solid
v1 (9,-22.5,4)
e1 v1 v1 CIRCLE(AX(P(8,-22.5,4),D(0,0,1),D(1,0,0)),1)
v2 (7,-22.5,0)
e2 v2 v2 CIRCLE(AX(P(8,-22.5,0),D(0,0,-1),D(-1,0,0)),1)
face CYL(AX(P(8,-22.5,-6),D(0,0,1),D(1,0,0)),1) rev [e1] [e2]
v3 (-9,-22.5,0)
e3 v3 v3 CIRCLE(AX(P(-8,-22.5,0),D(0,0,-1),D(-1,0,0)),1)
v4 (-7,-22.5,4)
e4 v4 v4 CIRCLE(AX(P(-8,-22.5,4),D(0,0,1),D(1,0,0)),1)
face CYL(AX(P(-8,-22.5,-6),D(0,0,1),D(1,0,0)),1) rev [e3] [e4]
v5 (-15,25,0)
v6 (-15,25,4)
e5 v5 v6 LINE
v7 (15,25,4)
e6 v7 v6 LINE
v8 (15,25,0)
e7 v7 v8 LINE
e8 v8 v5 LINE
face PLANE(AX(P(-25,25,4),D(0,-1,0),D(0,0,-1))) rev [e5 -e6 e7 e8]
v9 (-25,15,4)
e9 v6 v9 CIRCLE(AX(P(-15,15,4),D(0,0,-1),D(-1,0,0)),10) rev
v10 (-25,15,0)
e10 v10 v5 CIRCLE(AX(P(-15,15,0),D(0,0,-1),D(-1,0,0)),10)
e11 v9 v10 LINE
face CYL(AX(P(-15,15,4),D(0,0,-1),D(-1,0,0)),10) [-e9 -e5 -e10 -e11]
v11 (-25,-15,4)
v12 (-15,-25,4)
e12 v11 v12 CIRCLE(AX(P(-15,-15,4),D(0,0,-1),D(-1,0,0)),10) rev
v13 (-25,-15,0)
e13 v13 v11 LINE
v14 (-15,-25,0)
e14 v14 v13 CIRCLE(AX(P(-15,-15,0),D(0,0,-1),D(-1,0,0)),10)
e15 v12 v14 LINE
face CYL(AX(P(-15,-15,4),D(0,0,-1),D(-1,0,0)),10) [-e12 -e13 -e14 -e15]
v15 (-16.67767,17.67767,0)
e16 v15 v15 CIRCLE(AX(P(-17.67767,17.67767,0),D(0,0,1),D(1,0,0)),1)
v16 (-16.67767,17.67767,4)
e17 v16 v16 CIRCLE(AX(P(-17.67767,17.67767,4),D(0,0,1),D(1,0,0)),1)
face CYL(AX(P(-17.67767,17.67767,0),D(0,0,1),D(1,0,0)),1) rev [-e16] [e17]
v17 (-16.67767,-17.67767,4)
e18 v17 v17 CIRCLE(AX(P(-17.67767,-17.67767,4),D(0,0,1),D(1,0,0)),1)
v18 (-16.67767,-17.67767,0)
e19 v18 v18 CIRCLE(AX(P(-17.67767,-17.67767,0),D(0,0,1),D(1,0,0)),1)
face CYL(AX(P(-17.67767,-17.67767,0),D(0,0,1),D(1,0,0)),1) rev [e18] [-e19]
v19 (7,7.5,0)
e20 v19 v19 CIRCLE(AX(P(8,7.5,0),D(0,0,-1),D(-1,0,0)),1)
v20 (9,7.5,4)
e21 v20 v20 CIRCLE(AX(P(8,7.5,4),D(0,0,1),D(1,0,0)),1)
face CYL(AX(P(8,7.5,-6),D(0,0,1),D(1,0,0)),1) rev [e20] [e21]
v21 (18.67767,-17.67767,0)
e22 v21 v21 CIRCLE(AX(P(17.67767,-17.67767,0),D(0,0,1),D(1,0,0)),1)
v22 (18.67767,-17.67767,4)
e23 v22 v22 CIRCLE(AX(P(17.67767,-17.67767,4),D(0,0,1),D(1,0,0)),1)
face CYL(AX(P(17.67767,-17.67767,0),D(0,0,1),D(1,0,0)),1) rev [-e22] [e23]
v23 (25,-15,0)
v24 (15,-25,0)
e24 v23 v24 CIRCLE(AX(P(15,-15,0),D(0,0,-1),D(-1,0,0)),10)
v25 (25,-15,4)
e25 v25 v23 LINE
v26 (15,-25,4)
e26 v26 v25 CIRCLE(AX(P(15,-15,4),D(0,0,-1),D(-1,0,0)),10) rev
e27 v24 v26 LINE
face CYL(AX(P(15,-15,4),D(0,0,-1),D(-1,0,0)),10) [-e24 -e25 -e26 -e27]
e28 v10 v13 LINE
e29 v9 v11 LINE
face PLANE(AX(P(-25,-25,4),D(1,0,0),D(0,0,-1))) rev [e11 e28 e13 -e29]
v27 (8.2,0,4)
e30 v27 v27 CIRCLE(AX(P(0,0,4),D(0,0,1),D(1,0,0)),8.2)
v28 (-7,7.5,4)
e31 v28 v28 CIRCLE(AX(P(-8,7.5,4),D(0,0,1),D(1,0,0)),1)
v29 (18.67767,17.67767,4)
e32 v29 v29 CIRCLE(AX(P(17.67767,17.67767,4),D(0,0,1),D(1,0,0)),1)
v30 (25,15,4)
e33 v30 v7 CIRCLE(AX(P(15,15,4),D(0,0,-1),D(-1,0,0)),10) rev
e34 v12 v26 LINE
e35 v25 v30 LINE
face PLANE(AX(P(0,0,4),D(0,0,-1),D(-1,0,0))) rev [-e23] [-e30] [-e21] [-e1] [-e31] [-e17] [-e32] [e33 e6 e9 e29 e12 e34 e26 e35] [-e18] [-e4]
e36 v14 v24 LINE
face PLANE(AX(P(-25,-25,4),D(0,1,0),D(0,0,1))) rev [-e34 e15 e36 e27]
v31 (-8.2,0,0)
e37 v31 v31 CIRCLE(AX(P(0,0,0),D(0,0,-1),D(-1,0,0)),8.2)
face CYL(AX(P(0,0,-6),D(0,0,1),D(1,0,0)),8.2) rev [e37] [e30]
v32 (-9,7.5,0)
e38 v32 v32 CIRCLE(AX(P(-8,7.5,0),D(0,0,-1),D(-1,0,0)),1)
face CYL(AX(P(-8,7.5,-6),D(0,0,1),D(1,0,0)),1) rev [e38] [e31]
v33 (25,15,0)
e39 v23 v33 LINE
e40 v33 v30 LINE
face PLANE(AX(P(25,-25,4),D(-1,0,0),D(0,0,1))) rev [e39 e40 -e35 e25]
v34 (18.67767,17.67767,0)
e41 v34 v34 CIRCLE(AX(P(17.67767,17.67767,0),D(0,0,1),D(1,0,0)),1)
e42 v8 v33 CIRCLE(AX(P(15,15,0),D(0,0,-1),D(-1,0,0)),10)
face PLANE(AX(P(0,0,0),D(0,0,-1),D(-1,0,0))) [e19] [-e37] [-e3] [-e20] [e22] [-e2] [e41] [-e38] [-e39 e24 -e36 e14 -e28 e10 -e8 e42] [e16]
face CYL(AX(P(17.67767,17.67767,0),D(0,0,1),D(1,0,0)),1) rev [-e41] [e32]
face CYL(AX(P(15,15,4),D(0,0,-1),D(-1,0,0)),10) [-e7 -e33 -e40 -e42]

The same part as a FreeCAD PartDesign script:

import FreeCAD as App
import Part
import Sketcher

V = App.Vector
Q = App.Units.Quantity


def edges_at(feature, points):
    """Names of the edges that pass closest to the given points."""
    edges = feature.Shape.Edges
    near = lambda p: min(range(len(edges)), key=lambda i: edges[i].distToShape(Part.Vertex(*p))[0])
    return sorted({f"Edge{near(p) + 1}" for p in points})

doc = App.newDocument("Part")
body = doc.addObject("PartDesign::Body", "Body")

# Sketch on XY plane
sketch1 = body.newObject("Sketcher::SketchObject", "Sketch")
sketch1.AttachmentSupport = (doc.getObject("XY_Plane"), [""])
sketch1.MapMode = "FlatFace"
sketch1.addGeometry([
    Part.LineSegment(V(-25, 25, 0), V(-25, -25, 0)),
    Part.LineSegment(V(-25, -25, 0), V(25, -25, 0)),
    Part.LineSegment(V(25, -25, 0), V(25, 25, 0)),
    Part.LineSegment(V(25, 25, 0), V(-25, 25, 0)),
], False)
sketch1.addConstraint([
    Sketcher.Constraint("Coincident", 0, 2, 1, 1),
    Sketcher.Constraint("Coincident", 1, 2, 2, 1),
    Sketcher.Constraint("Coincident", 2, 2, 3, 1),
    Sketcher.Constraint("Coincident", 3, 2, 0, 1),
    Sketcher.Constraint("Vertical", 0),
    Sketcher.Constraint("Horizontal", 1),
    Sketcher.Constraint("Vertical", 2),
    Sketcher.Constraint("Horizontal", 3),
    Sketcher.Constraint("Symmetric", 0, 2, 2, 2, -1, 1),
    Sketcher.Constraint("Equal", 3, 0),
    Sketcher.Constraint("DistanceX", 1, 1, 1, 2, Q("50 mm")),
])
pad1 = body.newObject("PartDesign::Pad", "Pad")
pad1.Profile = sketch1
pad1.Length = 4

# Sketch on XY plane
sketch2 = body.newObject("Sketcher::SketchObject", "Sketch001")
sketch2.AttachmentSupport = (doc.getObject("XY_Plane"), [""])
sketch2.MapMode = "FlatFace"
sketch2.AttachmentOffset = App.Placement(V(0, 0, 4), App.Rotation())
sketch2.addGeometry([
    Part.Circle(V(0, 0, 0), V(0, 0, 1), 8.2),  # 0
    Part.Circle(V(-8, 7.5, 0), V(0, 0, 1), 1),  # 1
    Part.Circle(V(8, 7.5, 0), V(0, 0, 1), 1),  # 2
    Part.Circle(V(-8, -22.5, 0), V(0, 0, 1), 1),  # 3
    Part.Circle(V(8, -22.5, 0), V(0, 0, 1), 1),  # 4
], False)
sketch2.addConstraint([
    Sketcher.Constraint("Coincident", 0, 3, -1, 1),
    Sketcher.Constraint("Equal", 1, 2),
    Sketcher.Constraint("Equal", 2, 3),
    Sketcher.Constraint("Equal", 3, 4),
    Sketcher.Constraint("Symmetric", 1, 3, 2, 3, -2),
    Sketcher.Constraint("Symmetric", 3, 3, 4, 3, -2),
    Sketcher.Constraint("Vertical", 1, 3, 3, 3),
    Sketcher.Constraint("Diameter", 1, Q("2 mm")),
    Sketcher.Constraint("Diameter", 0, Q("16.4 mm")),
    Sketcher.Constraint("DistanceX", 1, 3, -1, 1, Q("8 mm")),
    Sketcher.Constraint("DistanceY", 3, 3, 1, 3, Q("30 mm")),
    Sketcher.Constraint("DistanceY", -1, 1, 1, 3, Q("7.5 mm")),
])
pocket1 = body.newObject("PartDesign::Pocket", "Pocket")
pocket1.Profile = sketch2
pocket1.Length = 10

# Sketch on XY plane
sketch3 = body.newObject("Sketcher::SketchObject", "Sketch002")
sketch3.AttachmentSupport = (doc.getObject("XY_Plane"), [""])
sketch3.MapMode = "FlatFace"
sketch3.AttachmentOffset = App.Placement(V(0, 0, 4), App.Rotation())
sketch3.addGeometry([
    Part.Circle(V(-17.7, 17.7, 0), V(0, 0, 1), 1),
    Part.Circle(V(17.7, 17.7, 0), V(0, 0, 1), 1),
    Part.Circle(V(17.7, -17.7, 0), V(0, 0, 1), 1),
    Part.Circle(V(-17.7, -17.7, 0), V(0, 0, 1), 1),
], False)
sketch3.addConstraint([
    Sketcher.Constraint("Equal", 0, 1),
    Sketcher.Constraint("Equal", 1, 2),
    Sketcher.Constraint("Equal", 2, 3),
    Sketcher.Constraint("Symmetric", 0, 3, 2, 3, -1, 1),
    Sketcher.Constraint("Symmetric", 1, 3, 3, 3, -1, 1),
    Sketcher.Constraint("Symmetric", 0, 3, 1, 3, -2),
    Sketcher.Constraint("Diameter", 0, Q("2 mm")),
    Sketcher.Constraint("DistanceX", 0, 3, -1, 1, Q("17.67767 mm")),
    Sketcher.Constraint("DistanceY", -1, 1, 0, 3, Q("17.67767 mm")),
])
pocket2 = body.newObject("PartDesign::Pocket", "Pocket001")
pocket2.Profile = sketch3
pocket2.Length = 4
doc.recompute()

fillet = body.newObject("PartDesign::Fillet", "Fillet")
fillet.Base = (pocket2, edges_at(pocket2, [
    (25, -25, 2),
    (-25, -25, 2),
    (-25, 25, 2),
    (25, 25, 2),
]))
fillet.Radius = 10

doc.recompute()
